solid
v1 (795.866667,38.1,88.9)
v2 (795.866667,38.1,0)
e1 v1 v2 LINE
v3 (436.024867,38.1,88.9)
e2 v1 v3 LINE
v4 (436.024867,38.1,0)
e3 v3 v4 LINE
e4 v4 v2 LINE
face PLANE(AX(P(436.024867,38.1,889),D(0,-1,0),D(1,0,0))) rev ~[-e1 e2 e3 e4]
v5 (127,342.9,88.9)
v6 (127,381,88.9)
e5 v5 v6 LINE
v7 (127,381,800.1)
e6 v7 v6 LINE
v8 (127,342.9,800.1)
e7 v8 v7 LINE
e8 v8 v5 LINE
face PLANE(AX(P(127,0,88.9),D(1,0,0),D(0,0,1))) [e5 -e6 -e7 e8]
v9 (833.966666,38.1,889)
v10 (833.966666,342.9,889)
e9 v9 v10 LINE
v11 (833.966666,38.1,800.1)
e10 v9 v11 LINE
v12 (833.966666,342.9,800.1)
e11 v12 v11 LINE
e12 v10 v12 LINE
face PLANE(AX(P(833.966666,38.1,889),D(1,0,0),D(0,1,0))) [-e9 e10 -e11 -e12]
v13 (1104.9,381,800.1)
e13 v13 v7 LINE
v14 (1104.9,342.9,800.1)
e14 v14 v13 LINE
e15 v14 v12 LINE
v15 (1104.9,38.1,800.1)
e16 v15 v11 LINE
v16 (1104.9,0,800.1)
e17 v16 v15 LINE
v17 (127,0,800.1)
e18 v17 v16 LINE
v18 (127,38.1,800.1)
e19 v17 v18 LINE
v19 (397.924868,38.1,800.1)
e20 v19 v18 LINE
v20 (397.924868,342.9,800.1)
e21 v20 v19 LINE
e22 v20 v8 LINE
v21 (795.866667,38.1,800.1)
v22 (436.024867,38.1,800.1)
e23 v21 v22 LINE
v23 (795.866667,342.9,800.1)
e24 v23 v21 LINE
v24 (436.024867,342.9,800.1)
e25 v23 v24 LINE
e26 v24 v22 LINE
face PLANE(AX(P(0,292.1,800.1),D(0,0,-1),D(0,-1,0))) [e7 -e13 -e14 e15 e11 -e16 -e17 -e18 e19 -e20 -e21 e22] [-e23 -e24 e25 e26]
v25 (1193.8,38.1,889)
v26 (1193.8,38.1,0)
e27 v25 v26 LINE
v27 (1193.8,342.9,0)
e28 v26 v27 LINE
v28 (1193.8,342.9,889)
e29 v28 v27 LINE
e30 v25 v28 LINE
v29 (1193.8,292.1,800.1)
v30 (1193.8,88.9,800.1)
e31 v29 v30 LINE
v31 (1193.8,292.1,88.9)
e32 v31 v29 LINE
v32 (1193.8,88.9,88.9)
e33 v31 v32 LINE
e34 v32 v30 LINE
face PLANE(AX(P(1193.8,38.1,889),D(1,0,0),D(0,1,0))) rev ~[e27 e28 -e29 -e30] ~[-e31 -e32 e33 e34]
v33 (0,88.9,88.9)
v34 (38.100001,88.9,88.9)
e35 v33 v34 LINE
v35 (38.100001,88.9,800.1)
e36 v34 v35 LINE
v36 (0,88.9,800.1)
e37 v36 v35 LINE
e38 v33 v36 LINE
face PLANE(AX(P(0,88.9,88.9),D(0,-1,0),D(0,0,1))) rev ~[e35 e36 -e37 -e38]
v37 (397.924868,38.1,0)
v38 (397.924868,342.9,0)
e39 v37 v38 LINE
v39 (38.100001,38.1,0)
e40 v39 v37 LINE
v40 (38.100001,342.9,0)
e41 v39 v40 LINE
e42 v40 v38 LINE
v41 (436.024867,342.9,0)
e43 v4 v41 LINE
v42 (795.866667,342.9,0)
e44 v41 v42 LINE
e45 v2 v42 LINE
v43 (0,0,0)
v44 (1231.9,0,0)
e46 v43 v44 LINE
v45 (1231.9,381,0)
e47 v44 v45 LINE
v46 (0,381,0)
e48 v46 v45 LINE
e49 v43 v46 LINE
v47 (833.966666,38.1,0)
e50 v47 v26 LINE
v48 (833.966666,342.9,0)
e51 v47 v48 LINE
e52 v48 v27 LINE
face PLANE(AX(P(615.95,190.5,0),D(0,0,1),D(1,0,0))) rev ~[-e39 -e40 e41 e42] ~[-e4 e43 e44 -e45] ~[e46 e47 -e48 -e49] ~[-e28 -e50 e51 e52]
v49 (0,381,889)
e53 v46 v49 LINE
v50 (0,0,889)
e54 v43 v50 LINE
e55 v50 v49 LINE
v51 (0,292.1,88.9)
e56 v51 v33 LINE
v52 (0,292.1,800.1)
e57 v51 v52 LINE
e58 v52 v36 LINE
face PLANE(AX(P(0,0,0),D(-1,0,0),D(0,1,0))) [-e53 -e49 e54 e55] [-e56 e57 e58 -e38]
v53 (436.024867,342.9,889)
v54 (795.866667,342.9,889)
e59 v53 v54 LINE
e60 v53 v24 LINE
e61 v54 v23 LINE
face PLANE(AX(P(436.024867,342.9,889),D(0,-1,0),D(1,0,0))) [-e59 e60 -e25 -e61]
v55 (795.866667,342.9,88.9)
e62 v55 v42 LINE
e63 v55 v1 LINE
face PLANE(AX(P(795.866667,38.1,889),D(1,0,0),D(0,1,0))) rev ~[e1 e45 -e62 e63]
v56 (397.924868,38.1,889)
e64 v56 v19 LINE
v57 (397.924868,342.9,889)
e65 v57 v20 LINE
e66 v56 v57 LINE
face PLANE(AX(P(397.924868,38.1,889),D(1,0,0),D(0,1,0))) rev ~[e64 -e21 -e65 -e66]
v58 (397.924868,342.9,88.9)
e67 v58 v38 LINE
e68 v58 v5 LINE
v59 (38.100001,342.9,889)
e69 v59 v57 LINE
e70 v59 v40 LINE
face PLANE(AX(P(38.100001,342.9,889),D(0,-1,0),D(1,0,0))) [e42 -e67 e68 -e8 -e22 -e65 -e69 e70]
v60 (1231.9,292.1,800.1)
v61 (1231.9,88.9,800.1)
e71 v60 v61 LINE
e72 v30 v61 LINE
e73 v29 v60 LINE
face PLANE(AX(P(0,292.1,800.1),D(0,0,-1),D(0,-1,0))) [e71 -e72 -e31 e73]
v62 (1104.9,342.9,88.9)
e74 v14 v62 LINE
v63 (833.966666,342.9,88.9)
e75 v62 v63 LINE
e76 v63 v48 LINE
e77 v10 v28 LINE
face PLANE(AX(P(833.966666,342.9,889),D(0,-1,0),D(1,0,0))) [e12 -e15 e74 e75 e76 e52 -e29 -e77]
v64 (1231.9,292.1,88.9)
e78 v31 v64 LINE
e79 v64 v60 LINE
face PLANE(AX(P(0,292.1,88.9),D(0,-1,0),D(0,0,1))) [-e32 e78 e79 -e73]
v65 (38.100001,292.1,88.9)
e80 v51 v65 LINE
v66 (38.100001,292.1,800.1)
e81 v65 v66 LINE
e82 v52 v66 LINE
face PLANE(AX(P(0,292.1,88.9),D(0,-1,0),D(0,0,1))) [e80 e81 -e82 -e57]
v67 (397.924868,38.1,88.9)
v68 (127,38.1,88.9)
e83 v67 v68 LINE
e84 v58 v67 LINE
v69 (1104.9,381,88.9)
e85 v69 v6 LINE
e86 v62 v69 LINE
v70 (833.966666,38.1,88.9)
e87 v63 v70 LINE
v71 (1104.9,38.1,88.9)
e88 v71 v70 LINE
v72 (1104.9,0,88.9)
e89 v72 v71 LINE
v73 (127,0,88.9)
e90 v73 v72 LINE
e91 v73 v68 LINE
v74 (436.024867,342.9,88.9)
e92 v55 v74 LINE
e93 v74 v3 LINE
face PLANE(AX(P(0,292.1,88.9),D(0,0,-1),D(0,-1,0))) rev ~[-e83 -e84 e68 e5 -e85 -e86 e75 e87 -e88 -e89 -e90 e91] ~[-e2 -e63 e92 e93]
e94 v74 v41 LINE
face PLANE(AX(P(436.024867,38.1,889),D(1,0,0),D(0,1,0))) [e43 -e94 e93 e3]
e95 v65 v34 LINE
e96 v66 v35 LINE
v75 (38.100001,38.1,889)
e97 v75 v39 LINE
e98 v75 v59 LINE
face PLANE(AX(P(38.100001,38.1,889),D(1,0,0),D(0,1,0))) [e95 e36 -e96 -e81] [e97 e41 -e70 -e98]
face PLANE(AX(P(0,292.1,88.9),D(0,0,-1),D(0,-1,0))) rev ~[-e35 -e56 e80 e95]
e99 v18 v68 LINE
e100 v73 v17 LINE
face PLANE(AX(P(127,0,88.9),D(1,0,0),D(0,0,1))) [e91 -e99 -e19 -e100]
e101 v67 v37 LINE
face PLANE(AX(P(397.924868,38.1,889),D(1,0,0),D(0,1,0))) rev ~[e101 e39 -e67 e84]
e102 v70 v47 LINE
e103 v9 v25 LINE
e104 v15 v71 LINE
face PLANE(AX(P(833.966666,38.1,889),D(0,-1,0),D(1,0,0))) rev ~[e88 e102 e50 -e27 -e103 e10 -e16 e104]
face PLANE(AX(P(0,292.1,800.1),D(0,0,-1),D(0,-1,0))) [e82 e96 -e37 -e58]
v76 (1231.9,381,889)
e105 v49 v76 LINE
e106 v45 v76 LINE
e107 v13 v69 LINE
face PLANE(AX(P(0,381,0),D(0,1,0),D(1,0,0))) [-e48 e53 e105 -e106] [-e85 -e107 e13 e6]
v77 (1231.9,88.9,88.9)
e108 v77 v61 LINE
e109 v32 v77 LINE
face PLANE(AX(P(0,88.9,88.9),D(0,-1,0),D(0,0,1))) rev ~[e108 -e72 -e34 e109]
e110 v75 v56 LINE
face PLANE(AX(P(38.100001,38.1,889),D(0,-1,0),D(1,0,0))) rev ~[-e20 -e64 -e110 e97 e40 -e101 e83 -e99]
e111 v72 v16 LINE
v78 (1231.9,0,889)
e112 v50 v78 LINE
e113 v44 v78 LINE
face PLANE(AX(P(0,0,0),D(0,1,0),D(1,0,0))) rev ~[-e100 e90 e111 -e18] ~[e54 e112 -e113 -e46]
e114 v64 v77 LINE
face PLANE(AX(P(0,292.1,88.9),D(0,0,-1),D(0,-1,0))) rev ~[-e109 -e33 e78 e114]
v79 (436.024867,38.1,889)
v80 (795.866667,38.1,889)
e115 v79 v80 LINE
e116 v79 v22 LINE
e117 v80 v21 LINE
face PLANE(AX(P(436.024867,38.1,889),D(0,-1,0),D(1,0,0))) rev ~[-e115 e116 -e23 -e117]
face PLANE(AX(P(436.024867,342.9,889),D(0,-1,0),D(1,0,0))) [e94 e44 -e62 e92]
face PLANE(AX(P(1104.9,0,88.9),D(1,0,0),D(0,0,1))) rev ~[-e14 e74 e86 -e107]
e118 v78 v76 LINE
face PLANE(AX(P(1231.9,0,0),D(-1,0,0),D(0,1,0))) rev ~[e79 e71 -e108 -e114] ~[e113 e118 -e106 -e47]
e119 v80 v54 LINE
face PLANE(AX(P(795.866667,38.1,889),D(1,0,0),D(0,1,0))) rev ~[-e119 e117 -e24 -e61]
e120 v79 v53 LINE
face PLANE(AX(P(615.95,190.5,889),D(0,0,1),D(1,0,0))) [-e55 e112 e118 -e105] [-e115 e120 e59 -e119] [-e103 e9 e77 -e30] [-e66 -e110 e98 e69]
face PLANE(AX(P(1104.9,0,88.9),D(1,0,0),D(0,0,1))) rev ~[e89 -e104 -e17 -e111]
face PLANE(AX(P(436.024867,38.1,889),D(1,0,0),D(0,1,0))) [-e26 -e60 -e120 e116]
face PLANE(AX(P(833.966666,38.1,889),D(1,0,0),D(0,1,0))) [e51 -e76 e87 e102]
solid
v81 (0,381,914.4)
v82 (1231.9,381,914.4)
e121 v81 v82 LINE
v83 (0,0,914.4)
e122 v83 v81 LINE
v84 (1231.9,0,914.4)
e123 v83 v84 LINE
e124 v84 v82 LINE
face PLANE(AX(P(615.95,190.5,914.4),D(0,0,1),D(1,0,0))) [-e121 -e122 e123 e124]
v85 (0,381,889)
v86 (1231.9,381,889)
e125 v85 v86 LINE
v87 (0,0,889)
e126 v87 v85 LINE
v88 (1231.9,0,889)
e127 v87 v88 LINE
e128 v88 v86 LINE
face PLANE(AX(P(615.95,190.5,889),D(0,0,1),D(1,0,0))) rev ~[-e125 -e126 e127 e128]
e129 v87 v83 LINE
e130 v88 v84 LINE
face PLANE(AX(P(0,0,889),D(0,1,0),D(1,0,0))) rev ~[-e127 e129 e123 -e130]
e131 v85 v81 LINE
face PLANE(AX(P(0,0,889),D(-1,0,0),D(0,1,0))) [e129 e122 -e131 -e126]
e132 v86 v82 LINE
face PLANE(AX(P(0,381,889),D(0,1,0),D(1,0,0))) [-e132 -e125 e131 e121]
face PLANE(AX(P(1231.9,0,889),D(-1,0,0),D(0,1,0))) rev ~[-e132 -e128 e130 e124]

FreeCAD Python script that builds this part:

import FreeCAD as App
import Part
import Sketcher
Q = App.Units.Quantity


def add_polygon(sketch, points):
    """Adds a closed chain of lines whose ends are joined by coincident constraints."""
    first, n = sketch.GeometryCount, len(points)
    for a, b in zip(points, points[1:] + points[:1]):
        sketch.addGeometry(Part.LineSegment(App.Vector(*a, 0), App.Vector(*b, 0)), False)
    for i in range(n):
        sketch.addConstraint(Sketcher.Constraint("Coincident", first + i, 2, first + (i + 1) % n, 1))

doc = App.newDocument("Part")
body = doc.addObject("PartDesign::Body", "Body")

# Sketch on XY plane
sketch1 = body.newObject("Sketcher::SketchObject", "Sketch")
sketch1.AttachmentSupport = (doc.getObject("XY_Plane"), [""])
sketch1.MapMode = "FlatFace"
add_polygon(sketch1, [(0, 381), (0, 0), (1232, 0), (1232, 381)])  # lines 0-3
sketch1.addConstraint([
    Sketcher.Constraint("Vertical", 0),
    Sketcher.Constraint("Horizontal", 1),
    Sketcher.Constraint("Vertical", 2),
    Sketcher.Constraint("Horizontal", 3),
    Sketcher.Constraint("Coincident", 0, 2, -1, 1),
    Sketcher.Constraint("DistanceY", 0, 2, 0, 1, Q("15 in")),
    Sketcher.Constraint("DistanceX", 1, 1, 1, 2, Q("48.5 in")),
])
pad1 = body.newObject("PartDesign::Pad", "Pad")
pad1.Profile = sketch1
pad1.Length = Q("35 in")

# Sketch on YZ plane
sketch2 = body.newObject("Sketcher::SketchObject", "Sketch001")
sketch2.AttachmentSupport = (doc.getObject("YZ_Plane"), [""])
sketch2.MapMode = "FlatFace"
add_polygon(sketch2, [(292, 800), (292, 89), (89, 89), (89, 800)])  # lines 0-3
sketch2.addConstraint([
    Sketcher.Constraint("Vertical", 0),
    Sketcher.Constraint("Horizontal", 1),
    Sketcher.Constraint("Vertical", 2),
    Sketcher.Constraint("Horizontal", 3),
    Sketcher.Constraint("DistanceX", 1, 2, 1, 1, Q("8 in")),
    Sketcher.Constraint("DistanceY", 0, 2, 0, 1, Q("28 in")),
    Sketcher.Constraint("DistanceX", -1, 1, 0, 2, Q("11.5 in")),
    Sketcher.Constraint("DistanceY", -1, 1, 0, 2, Q("3.5 in")),
])
pocket1 = body.newObject("PartDesign::Pocket", "Pocket")
pocket1.Profile = sketch2
pocket1.Type = "ThroughAll"
pocket1.Reversed = True

# Sketch on XZ plane
sketch3 = body.newObject("Sketcher::SketchObject", "Sketch002")
sketch3.AttachmentSupport = (doc.getObject("XZ_Plane"), [""])
sketch3.MapMode = "FlatFace"
add_polygon(sketch3, [(127, 800), (127, 89), (1105, 89), (1105, 800)])  # lines 0-3
sketch3.addConstraint([
    Sketcher.Constraint("Vertical", 0),
    Sketcher.Constraint("Horizontal", 1),
    Sketcher.Constraint("Vertical", 2),
    Sketcher.Constraint("Horizontal", 3),
    Sketcher.Constraint("DistanceY", 0, 2, 0, 1, Q("28 in")),
    Sketcher.Constraint("DistanceX", 1, 1, 1, 2, Q("38.5 in")),
    Sketcher.Constraint("DistanceX", -1, 1, 0, 2, Q("5 in")),
    Sketcher.Constraint("DistanceY", -1, 1, 0, 2, Q("3.5 in")),
])
pocket2 = body.newObject("PartDesign::Pocket", "Pocket001")
pocket2.Profile = sketch3
pocket2.Type = "ThroughAll"

# Sketch on XY plane
sketch4 = body.newObject("Sketcher::SketchObject", "Sketch003")
sketch4.AttachmentSupport = (doc.getObject("XY_Plane"), [""])
sketch4.MapMode = "FlatFace"
sketch4.AttachmentOffset = App.Placement(App.Vector(0, 0, 35 * 25.4), App.Rotation())
add_polygon(sketch4, [(38, 343), (38, 38), (398, 38), (398, 343)])  # lines 0-3
add_polygon(sketch4, [(436, 343), (436, 38), (796, 38), (796, 343)])  # lines 4-7
add_polygon(sketch4, [(834, 343), (834, 38), (1194, 38), (1194, 343)])  # lines 8-11
sketch4.addConstraint([
    Sketcher.Constraint("Vertical", 0),
    Sketcher.Constraint("Horizontal", 1),
    Sketcher.Constraint("Vertical", 2),
    Sketcher.Constraint("Horizontal", 3),
    Sketcher.Constraint("Vertical", 4),
    Sketcher.Constraint("Horizontal", 5),
    Sketcher.Constraint("Vertical", 6),
    Sketcher.Constraint("Horizontal", 7),
    Sketcher.Constraint("Vertical", 8),
    Sketcher.Constraint("Horizontal", 9),
    Sketcher.Constraint("Vertical", 10),
    Sketcher.Constraint("Horizontal", 11),
    Sketcher.Constraint("Horizontal", 1, 2, 4, 2),
    Sketcher.Constraint("Horizontal", 3, 2, 6, 2),
    Sketcher.Constraint("Horizontal", 5, 2, 8, 2),
    Sketcher.Constraint("Horizontal", 7, 2, 10, 2),
    Sketcher.Constraint("DistanceY", 0, 2, 0, 1, Q("12 in")),
    Sketcher.Constraint("DistanceX", -1, 1, 9, 2, Q("47 in")),
    Sketcher.Constraint("DistanceX", -1, 1, 0, 2, Q("1.5 in")),
    Sketcher.Constraint("DistanceY", -1, 1, 0, 2, Q("1.5 in")),
    Sketcher.Constraint("DistanceX", 1, 2, 4, 2, Q("1.5 in")),
    Sketcher.Constraint("DistanceX", 5, 2, 8, 2, Q("1.5 in")),
    Sketcher.Constraint("DistanceX", 5, 1, 5, 2, Q("14.167 in")),
    Sketcher.Constraint("DistanceX", 1, 1, 1, 2, Q("359.824867 mm")),
])
pocket3 = body.newObject("PartDesign::Pocket", "Pocket002")
pocket3.Profile = sketch4
pocket3.Type = "ThroughAll"
body2 = doc.addObject("PartDesign::Body", "Body001")

# Sketch on XY plane
sketch5 = body2.newObject("Sketcher::SketchObject", "Sketch004")
sketch5.AttachmentSupport = (doc.getObject("XY_Plane001"), [""])
sketch5.MapMode = "FlatFace"
sketch5.AttachmentOffset = App.Placement(App.Vector(0, 0, 35 * 25.4), App.Rotation())
add_polygon(sketch5, [(0, 381), (0, 0), (1232, 0), (1232, 381)])  # lines 0-3
sketch5.addConstraint([
    Sketcher.Constraint("Vertical", 0),
    Sketcher.Constraint("Horizontal", 1),
    Sketcher.Constraint("Vertical", 2),
    Sketcher.Constraint("Horizontal", 3),
    Sketcher.Constraint("Coincident", 0, 2, -1, 1),
    Sketcher.Constraint("DistanceY", 0, 2, 0, 1, Q("15 in")),
    Sketcher.Constraint("DistanceX", 1, 1, 1, 2, Q("48.5 in")),
])
pad2 = body2.newObject("PartDesign::Pad", "Pad001")
pad2.Profile = sketch5
pad2.Length = Q("1 in")

doc.recompute()
